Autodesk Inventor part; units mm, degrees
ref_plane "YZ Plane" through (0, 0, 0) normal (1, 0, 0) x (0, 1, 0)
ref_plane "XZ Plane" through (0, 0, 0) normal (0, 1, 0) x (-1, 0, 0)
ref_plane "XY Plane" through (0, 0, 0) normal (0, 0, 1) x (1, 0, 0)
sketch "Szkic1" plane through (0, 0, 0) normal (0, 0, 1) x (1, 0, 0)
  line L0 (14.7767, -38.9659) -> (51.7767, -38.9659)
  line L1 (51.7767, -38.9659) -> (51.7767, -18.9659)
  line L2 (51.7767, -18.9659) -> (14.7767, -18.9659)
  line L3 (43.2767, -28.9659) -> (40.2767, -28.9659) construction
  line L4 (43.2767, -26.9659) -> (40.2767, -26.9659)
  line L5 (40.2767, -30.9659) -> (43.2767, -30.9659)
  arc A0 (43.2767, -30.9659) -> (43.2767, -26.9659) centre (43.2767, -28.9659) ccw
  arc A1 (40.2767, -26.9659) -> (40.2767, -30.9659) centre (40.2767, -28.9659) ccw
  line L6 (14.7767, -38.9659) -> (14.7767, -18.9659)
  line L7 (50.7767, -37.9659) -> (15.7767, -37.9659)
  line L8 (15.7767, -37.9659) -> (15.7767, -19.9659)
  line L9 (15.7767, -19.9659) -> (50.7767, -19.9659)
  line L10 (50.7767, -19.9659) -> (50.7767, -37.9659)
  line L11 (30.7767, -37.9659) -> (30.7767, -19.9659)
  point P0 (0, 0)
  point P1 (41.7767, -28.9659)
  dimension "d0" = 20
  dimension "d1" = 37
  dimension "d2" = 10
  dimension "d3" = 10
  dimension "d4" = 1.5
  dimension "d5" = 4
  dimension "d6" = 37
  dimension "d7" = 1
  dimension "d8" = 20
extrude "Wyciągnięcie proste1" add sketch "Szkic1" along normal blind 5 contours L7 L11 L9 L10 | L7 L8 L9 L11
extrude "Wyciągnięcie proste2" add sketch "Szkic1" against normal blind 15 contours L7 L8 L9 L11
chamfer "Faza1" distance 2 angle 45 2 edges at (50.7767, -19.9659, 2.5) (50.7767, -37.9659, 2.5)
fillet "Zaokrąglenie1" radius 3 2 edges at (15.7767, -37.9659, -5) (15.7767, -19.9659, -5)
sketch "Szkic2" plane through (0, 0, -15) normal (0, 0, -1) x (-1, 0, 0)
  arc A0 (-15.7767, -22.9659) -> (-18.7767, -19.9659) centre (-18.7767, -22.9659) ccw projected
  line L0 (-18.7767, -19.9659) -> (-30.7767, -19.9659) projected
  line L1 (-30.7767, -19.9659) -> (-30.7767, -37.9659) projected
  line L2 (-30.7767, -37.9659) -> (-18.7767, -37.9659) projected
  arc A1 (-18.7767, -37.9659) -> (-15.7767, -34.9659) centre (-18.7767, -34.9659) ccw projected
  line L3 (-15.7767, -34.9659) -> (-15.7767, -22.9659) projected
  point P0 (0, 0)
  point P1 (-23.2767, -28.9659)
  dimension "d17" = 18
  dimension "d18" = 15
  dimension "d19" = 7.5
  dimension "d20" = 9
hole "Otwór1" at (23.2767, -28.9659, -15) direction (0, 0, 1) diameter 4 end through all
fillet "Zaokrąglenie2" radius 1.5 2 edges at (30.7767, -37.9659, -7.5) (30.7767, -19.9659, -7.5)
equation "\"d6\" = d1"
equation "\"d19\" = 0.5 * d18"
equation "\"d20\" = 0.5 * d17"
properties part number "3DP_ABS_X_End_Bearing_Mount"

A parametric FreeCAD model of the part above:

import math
import FreeCAD as App
import Part
import Sketcher
Q = App.Units.Quantity


def edges_at(feature, points):
    """Names of the edges that pass closest to the given points."""
    edges = feature.Shape.Edges
    near = lambda p: min(range(len(edges)), key=lambda i: edges[i].distToShape(Part.Vertex(*p))[0])
    return sorted({f"Edge{near(p) + 1}" for p in points})


def add_polygon(sketch, points):
    """Adds a closed chain of lines whose ends are joined by coincident constraints."""
    first, n = sketch.GeometryCount, len(points)
    for a, b in zip(points, points[1:] + points[:1]):
        sketch.addGeometry(Part.LineSegment(App.Vector(*a, 0), App.Vector(*b, 0)), False)
    for i in range(n):
        sketch.addConstraint(Sketcher.Constraint("Coincident", first + i, 2, first + (i + 1) % n, 1))

doc = App.newDocument("Part")
body = doc.addObject("PartDesign::Body", "Body")

sketch1 = body.newObject("Sketcher::SketchObject", "Sketch")
sketch1.AttachmentSupport = (doc.getObject("XY_Plane"), [""])
sketch1.MapMode = "FlatFace"
add_polygon(sketch1, [(50.7767, -37.9659), (50.7767, -19.9659), (15.7767, -19.9659), (15.7767, -37.9659)])
sketch1.addGeometry(Part.LineSegment(App.Vector(40.2767, -26.9659, 0), App.Vector(43.2767, -26.9659, 0)), False)
sketch1.addGeometry(Part.ArcOfCircle(Part.Circle(App.Vector(43.2767, -28.9659, 0), App.Vector(0, 0, 1), 2), math.radians(-90), math.radians(90)), False)
sketch1.addGeometry(Part.LineSegment(App.Vector(43.2767, -30.9659, 0), App.Vector(40.2767, -30.9659, 0)), False)
sketch1.addGeometry(Part.ArcOfCircle(Part.Circle(App.Vector(40.2767, -28.9659, 0), App.Vector(0, 0, 1), 2), math.radians(90), math.radians(270)), False)
sketch1.addConstraint([
    Sketcher.Constraint("Tangent", 4, 2, 5, 2),
    Sketcher.Constraint("Tangent", 5, 1, 6, 1),
    Sketcher.Constraint("Tangent", 6, 2, 7, 2),
    Sketcher.Constraint("Tangent", 7, 1, 4, 1),
    Sketcher.Constraint("Vertical", 0),
    Sketcher.Constraint("Horizontal", 1),
    Sketcher.Constraint("Vertical", 2),
    Sketcher.Constraint("Horizontal", 3),
    Sketcher.Constraint("Horizontal", 4),
    Sketcher.Constraint("Horizontal", 6),
    Sketcher.Constraint("Radius", 5, Q("2 mm")),
    Sketcher.Constraint("DistanceX", 1, 2, 1, 1, Q("35 mm")),
    Sketcher.Constraint("DistanceX", 4, 1, 4, 2, Q("3 mm")),
    Sketcher.Constraint("DistanceY", 0, 1, 0, 2, Q("18 mm")),
    Sketcher.Constraint("DistanceY", 5, 3, 0, 2, Q("9 mm")),
    Sketcher.Constraint("DistanceX", 5, 3, 0, 2, Q("7.5 mm")),
    Sketcher.Constraint("DistanceY", 5, 3, -1, 1, Q("28.966 mm")),
    Sketcher.Constraint("DistanceX", -1, 1, 5, 3, Q("43.2767 mm")),
])
pad1 = body.newObject("PartDesign::Pad", "Pad")
pad1.Profile = sketch1
pad1.Length = 5

sketch2 = body.newObject("Sketcher::SketchObject", "Sketch001")
sketch2.AttachmentSupport = (doc.getObject("XY_Plane"), [""])
sketch2.MapMode = "FlatFace"
add_polygon(sketch2, [(15.7767, -37.9659), (30.7767, -37.9659), (30.7767, -19.9659), (15.7767, -19.9659)])
sketch2.addConstraint([
    Sketcher.Constraint("Horizontal", 0),
    Sketcher.Constraint("Vertical", 1),
    Sketcher.Constraint("Horizontal", 2),
    Sketcher.Constraint("Vertical", 3),
    Sketcher.Constraint("DistanceX", 0, 1, 0, 2, Q("15 mm")),
    Sketcher.Constraint("DistanceY", 1, 1, 1, 2, Q("18 mm")),
    Sketcher.Constraint("DistanceY", 0, 2, -1, 1, Q("37.966 mm")),
    Sketcher.Constraint("DistanceX", -1, 1, 0, 2, Q("30.7767 mm")),
])
pad2 = body.newObject("PartDesign::Pad", "Pad001")
pad2.Profile = sketch2
pad2.Length = 15
pad2.Reversed = True
doc.recompute()

chamfer = body.newObject("PartDesign::Chamfer", "Chamfer")
chamfer.Base = (pad2, edges_at(pad2, [(50.777, -19.966, 2.5), (50.777, -37.966, 2.5)]))
chamfer.Size = 2
doc.recompute()

fillet = body.newObject("PartDesign::Fillet", "Fillet")
fillet.Base = (chamfer, edges_at(chamfer, [(15.777, -37.966, -5), (15.777, -19.966, -5)]))
fillet.Radius = 3

sketch3 = body.newObject("Sketcher::SketchObject", "Sketch002")
sketch3.AttachmentSupport = (doc.getObject("XY_Plane"), [""])
sketch3.MapMode = "FlatFace"
sketch3.AttachmentOffset = App.Placement(App.Vector(0, 0, -15), App.Rotation())
sketch3.addGeometry(Part.Circle(App.Vector(23.2767, -28.9659, 0), App.Vector(0, 0, 1), 2), False)
sketch3.addConstraint([
    Sketcher.Constraint("Diameter", 0, Q("4 mm")),
    Sketcher.Constraint("DistanceY", 0, 3, -1, 1, Q("28.966 mm")),
    Sketcher.Constraint("DistanceX", -1, 1, 0, 3, Q("23.2767 mm")),
])
doc.recompute()
hole = body.newObject("PartDesign::Hole", "Hole")
hole.Profile = sketch3
hole.ThreadType = "None"
hole.Diameter = 4
hole.DepthType = "ThroughAll"
hole.Reversed = True
doc.recompute()

fillet2 = body.newObject("PartDesign::Fillet", "Fillet001")
fillet2.Base = (hole, edges_at(hole, [(30.777, -37.966, -7.5), (30.777, -19.966, -7.5)]))
fillet2.Radius = 1.5

doc.recompute()
